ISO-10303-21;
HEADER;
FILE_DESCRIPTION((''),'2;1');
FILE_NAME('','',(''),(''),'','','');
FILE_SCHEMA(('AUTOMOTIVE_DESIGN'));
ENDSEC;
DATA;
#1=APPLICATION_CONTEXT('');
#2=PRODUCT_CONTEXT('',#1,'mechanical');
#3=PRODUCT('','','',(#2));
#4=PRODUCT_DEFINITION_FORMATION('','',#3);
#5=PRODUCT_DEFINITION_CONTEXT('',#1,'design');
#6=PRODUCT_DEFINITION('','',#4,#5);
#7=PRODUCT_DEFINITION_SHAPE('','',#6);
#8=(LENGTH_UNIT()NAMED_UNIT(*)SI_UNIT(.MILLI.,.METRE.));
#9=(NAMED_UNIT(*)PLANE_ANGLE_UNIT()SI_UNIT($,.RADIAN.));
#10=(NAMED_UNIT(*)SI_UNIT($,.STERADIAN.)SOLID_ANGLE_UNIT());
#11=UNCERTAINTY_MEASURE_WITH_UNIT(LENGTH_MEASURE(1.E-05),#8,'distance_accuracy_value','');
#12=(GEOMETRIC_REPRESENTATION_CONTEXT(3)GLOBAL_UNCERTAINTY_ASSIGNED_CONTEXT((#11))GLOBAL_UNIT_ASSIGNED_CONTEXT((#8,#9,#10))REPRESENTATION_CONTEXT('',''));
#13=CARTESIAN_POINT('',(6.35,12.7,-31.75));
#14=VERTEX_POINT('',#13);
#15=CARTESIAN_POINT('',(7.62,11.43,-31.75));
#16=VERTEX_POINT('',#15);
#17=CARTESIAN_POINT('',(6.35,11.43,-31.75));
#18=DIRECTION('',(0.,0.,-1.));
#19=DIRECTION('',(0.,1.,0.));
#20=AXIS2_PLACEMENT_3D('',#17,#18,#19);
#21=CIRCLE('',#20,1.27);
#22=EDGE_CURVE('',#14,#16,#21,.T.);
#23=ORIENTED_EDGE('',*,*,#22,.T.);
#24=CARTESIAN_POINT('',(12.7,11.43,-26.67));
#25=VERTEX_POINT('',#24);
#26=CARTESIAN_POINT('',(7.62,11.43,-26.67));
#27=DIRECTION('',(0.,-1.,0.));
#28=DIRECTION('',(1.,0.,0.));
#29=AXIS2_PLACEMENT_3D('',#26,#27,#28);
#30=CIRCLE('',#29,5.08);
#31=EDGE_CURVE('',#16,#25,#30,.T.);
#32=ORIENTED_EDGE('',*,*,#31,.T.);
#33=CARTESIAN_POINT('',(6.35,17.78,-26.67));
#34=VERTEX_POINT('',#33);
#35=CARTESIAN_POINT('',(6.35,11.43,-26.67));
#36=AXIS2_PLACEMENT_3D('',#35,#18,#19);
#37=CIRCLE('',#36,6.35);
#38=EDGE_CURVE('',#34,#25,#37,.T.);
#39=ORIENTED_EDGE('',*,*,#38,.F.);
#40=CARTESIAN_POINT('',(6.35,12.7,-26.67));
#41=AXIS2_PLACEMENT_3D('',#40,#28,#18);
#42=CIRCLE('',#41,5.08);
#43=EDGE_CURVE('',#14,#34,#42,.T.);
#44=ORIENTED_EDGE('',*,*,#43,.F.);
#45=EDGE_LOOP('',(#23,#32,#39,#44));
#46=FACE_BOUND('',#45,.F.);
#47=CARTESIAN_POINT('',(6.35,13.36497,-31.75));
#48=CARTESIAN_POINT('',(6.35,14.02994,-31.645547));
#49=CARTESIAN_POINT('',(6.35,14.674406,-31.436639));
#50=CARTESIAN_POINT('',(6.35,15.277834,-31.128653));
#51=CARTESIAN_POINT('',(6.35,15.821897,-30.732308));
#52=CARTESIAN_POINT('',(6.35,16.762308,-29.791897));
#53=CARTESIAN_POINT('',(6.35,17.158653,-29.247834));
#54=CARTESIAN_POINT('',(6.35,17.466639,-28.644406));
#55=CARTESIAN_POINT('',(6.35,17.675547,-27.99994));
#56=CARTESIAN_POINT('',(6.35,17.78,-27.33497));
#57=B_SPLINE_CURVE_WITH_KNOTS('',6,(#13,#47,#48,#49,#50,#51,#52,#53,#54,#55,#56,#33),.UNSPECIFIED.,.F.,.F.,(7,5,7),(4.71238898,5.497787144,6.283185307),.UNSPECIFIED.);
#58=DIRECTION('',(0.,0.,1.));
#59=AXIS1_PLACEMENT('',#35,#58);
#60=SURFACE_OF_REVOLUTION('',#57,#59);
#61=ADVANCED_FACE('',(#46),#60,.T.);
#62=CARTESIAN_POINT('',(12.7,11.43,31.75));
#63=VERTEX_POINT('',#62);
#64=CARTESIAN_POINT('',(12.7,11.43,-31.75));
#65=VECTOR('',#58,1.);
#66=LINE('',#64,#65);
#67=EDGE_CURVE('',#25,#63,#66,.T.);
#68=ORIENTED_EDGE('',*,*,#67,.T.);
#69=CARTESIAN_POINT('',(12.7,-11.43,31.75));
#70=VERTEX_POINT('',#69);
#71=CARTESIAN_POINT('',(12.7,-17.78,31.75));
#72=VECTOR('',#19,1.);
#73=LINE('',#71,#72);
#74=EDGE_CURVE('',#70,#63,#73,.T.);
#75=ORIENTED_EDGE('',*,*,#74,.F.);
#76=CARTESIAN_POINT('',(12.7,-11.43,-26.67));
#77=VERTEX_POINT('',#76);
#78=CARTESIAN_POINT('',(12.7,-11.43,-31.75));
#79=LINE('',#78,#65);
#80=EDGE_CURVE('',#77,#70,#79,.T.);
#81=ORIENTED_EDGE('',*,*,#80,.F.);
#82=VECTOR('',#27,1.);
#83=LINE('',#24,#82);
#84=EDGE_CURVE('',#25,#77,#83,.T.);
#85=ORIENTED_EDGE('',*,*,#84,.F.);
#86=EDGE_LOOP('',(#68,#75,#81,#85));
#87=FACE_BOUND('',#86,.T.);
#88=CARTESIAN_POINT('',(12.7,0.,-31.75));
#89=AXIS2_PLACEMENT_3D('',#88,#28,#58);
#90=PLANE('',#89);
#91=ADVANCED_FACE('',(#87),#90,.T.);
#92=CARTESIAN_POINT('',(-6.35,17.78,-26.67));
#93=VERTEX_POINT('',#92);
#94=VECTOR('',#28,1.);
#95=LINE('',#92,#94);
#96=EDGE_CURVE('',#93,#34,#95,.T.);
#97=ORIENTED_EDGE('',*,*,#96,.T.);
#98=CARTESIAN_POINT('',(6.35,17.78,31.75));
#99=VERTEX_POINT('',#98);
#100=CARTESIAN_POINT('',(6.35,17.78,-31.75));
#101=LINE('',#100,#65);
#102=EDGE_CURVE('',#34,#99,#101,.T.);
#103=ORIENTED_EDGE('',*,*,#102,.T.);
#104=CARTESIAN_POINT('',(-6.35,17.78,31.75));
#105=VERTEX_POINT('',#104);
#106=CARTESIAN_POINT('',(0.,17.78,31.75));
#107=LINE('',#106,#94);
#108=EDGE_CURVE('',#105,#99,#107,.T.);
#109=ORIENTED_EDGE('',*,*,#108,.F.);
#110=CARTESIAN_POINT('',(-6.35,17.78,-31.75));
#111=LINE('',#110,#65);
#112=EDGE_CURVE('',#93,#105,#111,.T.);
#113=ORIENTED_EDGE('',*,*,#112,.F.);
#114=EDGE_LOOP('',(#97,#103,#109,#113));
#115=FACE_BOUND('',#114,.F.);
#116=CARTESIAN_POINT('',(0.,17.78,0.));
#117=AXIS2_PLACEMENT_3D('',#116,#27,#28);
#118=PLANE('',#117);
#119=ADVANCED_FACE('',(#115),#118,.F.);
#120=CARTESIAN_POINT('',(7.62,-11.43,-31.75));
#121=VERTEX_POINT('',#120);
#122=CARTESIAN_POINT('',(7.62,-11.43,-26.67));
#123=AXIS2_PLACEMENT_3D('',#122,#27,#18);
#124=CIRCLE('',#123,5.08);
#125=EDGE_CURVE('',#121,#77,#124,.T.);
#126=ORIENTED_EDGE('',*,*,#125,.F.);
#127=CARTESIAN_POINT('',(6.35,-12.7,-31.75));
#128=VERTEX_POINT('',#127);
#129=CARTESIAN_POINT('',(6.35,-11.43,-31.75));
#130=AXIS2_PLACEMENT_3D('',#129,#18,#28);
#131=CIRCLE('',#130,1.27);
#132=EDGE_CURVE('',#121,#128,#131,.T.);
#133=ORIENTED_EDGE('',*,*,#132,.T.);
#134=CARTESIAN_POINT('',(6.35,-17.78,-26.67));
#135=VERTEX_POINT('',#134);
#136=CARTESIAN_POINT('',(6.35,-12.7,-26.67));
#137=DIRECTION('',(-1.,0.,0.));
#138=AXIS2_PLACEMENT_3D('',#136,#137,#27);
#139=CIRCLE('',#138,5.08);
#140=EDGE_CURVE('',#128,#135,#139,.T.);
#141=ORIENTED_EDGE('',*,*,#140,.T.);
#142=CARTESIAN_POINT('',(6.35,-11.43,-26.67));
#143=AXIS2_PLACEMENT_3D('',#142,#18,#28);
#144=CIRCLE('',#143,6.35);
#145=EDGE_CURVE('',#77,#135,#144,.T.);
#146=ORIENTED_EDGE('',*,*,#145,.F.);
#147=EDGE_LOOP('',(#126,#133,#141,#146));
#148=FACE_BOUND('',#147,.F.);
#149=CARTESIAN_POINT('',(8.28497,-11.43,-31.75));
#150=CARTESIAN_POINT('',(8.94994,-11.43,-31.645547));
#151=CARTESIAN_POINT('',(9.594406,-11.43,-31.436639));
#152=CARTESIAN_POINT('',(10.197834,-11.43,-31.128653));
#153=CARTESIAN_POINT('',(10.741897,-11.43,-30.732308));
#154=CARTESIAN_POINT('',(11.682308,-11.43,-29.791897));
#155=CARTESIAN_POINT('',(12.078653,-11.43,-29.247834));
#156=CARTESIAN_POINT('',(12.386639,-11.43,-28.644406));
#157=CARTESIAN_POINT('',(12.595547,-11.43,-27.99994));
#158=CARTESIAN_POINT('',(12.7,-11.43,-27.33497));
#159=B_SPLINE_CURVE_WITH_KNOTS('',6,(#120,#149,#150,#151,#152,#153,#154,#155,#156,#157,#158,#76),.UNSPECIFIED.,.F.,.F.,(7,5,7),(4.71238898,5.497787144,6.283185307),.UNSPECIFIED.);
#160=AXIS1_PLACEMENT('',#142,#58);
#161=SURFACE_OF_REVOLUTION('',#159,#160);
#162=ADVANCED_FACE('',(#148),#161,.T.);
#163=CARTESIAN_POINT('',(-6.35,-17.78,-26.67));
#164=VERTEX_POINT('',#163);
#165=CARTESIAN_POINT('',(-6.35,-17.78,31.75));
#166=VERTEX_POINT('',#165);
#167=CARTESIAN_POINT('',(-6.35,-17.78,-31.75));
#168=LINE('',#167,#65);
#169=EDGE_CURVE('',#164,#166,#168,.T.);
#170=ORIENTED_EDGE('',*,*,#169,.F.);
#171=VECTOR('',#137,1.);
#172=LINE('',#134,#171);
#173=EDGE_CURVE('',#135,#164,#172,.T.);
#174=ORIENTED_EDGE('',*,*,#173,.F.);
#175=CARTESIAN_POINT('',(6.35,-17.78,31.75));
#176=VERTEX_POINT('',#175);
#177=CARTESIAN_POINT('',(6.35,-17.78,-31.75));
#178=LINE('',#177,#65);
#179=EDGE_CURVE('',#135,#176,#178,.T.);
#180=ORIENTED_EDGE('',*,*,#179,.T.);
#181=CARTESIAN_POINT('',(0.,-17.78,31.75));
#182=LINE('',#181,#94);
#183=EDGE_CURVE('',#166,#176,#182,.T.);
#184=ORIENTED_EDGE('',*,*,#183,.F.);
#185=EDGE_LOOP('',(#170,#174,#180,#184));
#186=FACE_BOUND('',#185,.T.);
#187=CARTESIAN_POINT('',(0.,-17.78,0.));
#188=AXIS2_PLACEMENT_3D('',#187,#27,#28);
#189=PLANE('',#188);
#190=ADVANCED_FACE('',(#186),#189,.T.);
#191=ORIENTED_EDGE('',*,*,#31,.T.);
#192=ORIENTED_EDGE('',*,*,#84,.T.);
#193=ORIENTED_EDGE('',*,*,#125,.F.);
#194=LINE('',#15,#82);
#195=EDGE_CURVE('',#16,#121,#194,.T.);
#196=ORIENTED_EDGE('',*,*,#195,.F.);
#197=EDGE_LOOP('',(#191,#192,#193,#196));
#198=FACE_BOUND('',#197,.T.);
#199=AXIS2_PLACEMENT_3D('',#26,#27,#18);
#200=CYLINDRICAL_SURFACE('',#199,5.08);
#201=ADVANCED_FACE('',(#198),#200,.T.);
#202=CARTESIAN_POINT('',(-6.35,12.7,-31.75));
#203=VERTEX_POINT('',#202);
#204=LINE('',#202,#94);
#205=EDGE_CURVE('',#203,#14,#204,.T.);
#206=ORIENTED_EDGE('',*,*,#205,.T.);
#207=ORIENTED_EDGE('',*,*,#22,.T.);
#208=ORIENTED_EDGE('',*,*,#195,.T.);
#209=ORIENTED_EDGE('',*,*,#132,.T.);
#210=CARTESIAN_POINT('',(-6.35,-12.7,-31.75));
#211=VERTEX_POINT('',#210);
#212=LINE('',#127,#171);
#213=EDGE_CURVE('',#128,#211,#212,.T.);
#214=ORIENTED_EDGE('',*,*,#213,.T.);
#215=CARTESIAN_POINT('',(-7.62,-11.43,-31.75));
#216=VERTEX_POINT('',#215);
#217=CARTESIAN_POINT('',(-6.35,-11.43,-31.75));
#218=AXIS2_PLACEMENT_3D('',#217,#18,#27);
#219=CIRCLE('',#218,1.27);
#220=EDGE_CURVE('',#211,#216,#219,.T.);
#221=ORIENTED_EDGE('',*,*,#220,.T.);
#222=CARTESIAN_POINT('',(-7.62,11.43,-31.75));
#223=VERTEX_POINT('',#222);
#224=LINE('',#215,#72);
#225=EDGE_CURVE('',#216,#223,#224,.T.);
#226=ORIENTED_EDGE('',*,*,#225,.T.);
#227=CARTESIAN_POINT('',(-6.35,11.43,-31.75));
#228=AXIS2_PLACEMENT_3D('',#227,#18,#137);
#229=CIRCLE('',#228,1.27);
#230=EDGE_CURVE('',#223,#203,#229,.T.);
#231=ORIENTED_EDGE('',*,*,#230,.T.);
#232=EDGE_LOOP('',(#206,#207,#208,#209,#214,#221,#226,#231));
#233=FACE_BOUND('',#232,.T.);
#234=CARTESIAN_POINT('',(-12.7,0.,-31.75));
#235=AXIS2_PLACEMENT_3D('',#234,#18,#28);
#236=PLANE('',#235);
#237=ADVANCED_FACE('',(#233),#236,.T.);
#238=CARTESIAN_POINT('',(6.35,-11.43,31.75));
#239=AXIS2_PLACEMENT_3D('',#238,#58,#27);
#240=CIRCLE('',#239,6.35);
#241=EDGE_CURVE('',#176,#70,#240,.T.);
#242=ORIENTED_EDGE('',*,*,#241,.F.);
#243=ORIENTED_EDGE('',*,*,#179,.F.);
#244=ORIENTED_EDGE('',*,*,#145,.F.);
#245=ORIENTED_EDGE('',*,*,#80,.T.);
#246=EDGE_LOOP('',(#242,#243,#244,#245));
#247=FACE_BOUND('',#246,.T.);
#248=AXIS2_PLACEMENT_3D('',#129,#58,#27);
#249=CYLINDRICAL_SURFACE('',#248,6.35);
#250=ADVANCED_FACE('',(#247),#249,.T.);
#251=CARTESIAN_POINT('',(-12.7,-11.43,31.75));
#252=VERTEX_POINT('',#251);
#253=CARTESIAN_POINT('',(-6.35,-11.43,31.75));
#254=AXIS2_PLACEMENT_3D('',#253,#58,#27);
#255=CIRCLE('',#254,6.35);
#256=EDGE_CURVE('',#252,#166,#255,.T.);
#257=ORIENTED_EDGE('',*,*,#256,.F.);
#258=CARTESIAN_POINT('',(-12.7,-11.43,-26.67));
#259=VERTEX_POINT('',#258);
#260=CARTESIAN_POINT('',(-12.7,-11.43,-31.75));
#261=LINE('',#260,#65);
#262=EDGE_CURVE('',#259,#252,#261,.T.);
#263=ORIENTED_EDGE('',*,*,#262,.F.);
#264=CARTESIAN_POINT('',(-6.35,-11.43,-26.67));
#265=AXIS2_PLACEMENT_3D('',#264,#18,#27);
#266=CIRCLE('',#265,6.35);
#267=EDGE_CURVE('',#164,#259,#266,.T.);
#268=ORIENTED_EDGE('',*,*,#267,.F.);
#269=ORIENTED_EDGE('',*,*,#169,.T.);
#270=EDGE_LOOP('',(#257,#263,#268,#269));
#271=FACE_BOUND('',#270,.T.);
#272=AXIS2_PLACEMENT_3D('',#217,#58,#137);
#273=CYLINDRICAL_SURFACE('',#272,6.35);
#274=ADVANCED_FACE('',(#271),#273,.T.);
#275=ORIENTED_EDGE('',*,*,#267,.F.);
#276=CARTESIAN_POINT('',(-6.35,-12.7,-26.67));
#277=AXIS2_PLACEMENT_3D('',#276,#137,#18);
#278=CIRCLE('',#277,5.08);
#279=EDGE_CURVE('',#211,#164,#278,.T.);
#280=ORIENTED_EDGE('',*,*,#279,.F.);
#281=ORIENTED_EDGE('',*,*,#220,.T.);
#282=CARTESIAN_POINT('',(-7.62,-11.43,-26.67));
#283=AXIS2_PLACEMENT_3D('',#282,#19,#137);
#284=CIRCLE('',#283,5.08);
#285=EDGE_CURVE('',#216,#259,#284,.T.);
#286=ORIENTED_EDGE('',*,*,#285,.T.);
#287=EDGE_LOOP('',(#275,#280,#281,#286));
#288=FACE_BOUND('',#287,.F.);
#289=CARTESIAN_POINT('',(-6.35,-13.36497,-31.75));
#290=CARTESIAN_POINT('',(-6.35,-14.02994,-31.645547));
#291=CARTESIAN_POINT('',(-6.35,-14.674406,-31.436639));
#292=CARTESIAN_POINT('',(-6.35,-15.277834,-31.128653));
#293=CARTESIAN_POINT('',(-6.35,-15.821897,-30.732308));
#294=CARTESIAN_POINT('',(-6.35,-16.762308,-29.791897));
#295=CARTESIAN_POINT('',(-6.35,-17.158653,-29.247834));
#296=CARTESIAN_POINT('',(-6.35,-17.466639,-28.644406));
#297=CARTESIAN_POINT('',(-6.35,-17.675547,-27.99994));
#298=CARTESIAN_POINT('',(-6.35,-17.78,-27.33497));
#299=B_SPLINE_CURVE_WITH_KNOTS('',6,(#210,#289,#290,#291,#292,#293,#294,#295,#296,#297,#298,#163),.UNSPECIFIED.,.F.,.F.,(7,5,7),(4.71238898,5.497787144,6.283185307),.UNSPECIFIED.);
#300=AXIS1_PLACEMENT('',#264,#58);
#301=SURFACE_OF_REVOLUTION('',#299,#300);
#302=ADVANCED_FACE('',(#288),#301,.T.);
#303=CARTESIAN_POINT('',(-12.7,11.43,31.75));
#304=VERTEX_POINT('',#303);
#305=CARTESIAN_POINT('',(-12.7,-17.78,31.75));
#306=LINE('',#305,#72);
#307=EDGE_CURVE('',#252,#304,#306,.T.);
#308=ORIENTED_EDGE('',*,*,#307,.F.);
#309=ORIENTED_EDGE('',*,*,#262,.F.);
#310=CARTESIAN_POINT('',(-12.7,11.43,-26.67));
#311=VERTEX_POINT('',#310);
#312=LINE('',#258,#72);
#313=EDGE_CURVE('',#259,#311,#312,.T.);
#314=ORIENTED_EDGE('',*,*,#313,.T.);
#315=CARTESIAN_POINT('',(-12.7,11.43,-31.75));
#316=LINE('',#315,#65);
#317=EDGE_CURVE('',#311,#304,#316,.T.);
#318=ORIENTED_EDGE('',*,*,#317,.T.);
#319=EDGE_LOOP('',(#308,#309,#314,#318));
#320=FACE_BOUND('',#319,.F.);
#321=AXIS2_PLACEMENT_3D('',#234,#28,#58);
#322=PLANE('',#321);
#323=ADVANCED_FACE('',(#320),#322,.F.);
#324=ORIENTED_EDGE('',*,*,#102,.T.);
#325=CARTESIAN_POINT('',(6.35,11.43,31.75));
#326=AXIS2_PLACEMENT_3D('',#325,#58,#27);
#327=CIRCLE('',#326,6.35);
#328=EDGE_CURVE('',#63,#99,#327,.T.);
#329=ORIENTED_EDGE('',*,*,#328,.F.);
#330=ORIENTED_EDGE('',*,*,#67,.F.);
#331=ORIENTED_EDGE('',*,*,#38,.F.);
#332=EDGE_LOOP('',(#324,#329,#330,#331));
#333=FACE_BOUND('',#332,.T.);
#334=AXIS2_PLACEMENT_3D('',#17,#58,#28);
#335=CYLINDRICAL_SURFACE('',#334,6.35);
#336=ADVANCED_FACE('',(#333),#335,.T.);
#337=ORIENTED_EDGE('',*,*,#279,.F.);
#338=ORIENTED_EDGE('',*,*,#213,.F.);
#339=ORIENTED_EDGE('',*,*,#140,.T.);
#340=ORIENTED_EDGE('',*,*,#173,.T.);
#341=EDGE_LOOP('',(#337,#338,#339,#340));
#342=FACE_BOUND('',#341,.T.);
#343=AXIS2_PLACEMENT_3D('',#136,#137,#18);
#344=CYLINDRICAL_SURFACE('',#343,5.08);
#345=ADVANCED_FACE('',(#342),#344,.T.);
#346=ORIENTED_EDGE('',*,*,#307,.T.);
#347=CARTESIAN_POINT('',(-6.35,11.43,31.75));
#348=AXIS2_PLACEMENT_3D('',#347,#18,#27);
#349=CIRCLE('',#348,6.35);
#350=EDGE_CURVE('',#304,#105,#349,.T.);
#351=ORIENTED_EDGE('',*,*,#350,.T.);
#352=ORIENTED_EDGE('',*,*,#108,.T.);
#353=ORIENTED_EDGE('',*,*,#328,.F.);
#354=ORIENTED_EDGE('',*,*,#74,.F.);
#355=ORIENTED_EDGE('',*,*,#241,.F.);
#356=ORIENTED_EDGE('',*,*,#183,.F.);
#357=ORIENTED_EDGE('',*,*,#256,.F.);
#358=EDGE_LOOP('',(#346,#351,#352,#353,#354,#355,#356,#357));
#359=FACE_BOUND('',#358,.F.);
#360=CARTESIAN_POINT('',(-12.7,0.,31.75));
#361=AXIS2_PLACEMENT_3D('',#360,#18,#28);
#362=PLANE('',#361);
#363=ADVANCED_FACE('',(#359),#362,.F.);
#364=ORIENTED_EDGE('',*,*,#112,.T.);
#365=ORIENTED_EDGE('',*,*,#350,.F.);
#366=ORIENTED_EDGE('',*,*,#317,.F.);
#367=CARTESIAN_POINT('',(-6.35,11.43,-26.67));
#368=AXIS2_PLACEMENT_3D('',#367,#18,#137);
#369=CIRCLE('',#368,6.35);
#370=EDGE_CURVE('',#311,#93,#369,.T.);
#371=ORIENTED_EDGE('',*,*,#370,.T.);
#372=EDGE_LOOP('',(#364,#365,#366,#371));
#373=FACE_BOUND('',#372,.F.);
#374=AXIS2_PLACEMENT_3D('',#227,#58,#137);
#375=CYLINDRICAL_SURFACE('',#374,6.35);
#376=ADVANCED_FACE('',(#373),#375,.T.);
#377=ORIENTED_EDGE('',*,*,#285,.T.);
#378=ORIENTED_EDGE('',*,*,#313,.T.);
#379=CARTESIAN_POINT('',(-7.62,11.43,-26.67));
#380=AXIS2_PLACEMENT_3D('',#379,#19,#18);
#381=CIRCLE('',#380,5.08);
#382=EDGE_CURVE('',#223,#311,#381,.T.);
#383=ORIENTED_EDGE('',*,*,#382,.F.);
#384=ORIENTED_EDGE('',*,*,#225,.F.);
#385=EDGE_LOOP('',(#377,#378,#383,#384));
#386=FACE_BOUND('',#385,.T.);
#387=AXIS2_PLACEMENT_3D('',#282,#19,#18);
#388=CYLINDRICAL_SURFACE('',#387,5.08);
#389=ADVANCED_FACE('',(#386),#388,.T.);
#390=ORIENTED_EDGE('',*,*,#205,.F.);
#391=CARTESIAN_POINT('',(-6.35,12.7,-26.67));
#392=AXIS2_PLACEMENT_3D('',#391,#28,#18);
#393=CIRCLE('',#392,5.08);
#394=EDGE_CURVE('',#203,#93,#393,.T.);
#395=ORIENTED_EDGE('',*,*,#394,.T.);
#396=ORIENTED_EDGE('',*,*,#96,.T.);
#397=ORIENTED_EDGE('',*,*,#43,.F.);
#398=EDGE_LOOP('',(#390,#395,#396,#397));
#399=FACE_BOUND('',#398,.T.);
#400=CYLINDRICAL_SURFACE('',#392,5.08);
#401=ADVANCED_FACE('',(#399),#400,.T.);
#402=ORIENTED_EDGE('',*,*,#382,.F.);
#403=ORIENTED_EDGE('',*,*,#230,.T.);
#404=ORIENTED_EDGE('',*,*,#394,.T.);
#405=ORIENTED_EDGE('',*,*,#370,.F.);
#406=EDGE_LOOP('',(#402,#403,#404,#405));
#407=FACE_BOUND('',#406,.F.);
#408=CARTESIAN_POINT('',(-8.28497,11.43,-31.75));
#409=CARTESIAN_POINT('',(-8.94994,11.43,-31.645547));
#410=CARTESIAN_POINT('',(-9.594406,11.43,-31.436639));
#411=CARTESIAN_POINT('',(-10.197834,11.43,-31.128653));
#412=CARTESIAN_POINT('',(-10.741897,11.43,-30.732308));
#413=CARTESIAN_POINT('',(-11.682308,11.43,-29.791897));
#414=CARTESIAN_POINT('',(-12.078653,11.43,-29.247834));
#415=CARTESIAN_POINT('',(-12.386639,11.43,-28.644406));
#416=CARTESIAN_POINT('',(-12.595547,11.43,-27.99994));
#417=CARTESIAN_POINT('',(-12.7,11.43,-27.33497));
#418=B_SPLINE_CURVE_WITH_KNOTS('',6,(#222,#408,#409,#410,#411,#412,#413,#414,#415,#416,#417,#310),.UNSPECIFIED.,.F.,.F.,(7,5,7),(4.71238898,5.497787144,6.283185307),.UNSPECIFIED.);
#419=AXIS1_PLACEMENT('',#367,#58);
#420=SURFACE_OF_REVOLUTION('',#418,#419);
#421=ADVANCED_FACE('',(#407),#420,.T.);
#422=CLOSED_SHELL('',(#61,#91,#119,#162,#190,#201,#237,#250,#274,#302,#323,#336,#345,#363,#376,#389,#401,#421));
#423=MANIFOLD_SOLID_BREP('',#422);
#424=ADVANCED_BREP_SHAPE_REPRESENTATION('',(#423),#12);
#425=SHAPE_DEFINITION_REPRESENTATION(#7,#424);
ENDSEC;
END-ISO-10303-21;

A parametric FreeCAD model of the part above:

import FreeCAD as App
import Part
import Sketcher
Q = App.Units.Quantity


def edges_at(feature, points):
    """Names of the edges that pass closest to the given points."""
    edges = feature.Shape.Edges
    near = lambda p: min(range(len(edges)), key=lambda i: edges[i].distToShape(Part.Vertex(*p))[0])
    return sorted({f"Edge{near(p) + 1}" for p in points})


def add_polygon(sketch, points):
    """Adds a closed chain of lines whose ends are joined by coincident constraints."""
    first, n = sketch.GeometryCount, len(points)
    for a, b in zip(points, points[1:] + points[:1]):
        sketch.addGeometry(Part.LineSegment(App.Vector(*a, 0), App.Vector(*b, 0)), False)
    for i in range(n):
        sketch.addConstraint(Sketcher.Constraint("Coincident", first + i, 2, first + (i + 1) % n, 1))

doc = App.newDocument("Part")
body = doc.addObject("PartDesign::Body", "Body")

# Sketch on XZ plane
sketch1 = body.newObject("Sketcher::SketchObject", "Sketch")
sketch1.AttachmentSupport = (doc.getObject("XZ_Plane"), [""])
sketch1.MapMode = "FlatFace"
add_polygon(sketch1, [(-13, 32), (-13, -32), (13, -32), (13, 32)])  # lines 0-3
sketch1.addConstraint([
    Sketcher.Constraint("Vertical", 0),
    Sketcher.Constraint("Horizontal", 1),
    Sketcher.Constraint("Vertical", 2),
    Sketcher.Constraint("Horizontal", 3),
    Sketcher.Constraint("Symmetric", 0, 2, 2, 2, -1, 1),
    Sketcher.Constraint("DistanceX", 1, 1, 1, 2, Q("1 in")),
    Sketcher.Constraint("DistanceY", 0, 2, 0, 1, Q("2.5 in")),
])
pad1 = body.newObject("PartDesign::Pad", "Pad")
pad1.Profile = sketch1
pad1.Length = Q("1.4 in")
pad1.Midplane = True
doc.recompute()

fillet = body.newObject("PartDesign::Fillet", "Fillet")
fillet.Base = (pad1, edges_at(pad1, [
    (-12.7, -17.78, 0),
    (-12.7, 17.78, 0),
    (12.7, 17.78, 0),
    (12.7, -17.78, 0),
]))
fillet.Radius = Q("0.25 in")
doc.recompute()

fillet2 = body.newObject("PartDesign::Fillet", "Fillet001")
fillet2.Base = (fillet, edges_at(fillet, [
    (0, 17.78, -31.75),
    (-10.84, 15.92, -31.75),
    (10.84, 15.92, -31.75),
    (-12.7, 0, -31.75),
    (12.7, 0, -31.75),
    (-10.84, -15.92, -31.75),
    (10.84, -15.92, -31.75),
    (0, -17.78, -31.75),
]))
fillet2.Radius = Q("0.2 in")

doc.recompute()
